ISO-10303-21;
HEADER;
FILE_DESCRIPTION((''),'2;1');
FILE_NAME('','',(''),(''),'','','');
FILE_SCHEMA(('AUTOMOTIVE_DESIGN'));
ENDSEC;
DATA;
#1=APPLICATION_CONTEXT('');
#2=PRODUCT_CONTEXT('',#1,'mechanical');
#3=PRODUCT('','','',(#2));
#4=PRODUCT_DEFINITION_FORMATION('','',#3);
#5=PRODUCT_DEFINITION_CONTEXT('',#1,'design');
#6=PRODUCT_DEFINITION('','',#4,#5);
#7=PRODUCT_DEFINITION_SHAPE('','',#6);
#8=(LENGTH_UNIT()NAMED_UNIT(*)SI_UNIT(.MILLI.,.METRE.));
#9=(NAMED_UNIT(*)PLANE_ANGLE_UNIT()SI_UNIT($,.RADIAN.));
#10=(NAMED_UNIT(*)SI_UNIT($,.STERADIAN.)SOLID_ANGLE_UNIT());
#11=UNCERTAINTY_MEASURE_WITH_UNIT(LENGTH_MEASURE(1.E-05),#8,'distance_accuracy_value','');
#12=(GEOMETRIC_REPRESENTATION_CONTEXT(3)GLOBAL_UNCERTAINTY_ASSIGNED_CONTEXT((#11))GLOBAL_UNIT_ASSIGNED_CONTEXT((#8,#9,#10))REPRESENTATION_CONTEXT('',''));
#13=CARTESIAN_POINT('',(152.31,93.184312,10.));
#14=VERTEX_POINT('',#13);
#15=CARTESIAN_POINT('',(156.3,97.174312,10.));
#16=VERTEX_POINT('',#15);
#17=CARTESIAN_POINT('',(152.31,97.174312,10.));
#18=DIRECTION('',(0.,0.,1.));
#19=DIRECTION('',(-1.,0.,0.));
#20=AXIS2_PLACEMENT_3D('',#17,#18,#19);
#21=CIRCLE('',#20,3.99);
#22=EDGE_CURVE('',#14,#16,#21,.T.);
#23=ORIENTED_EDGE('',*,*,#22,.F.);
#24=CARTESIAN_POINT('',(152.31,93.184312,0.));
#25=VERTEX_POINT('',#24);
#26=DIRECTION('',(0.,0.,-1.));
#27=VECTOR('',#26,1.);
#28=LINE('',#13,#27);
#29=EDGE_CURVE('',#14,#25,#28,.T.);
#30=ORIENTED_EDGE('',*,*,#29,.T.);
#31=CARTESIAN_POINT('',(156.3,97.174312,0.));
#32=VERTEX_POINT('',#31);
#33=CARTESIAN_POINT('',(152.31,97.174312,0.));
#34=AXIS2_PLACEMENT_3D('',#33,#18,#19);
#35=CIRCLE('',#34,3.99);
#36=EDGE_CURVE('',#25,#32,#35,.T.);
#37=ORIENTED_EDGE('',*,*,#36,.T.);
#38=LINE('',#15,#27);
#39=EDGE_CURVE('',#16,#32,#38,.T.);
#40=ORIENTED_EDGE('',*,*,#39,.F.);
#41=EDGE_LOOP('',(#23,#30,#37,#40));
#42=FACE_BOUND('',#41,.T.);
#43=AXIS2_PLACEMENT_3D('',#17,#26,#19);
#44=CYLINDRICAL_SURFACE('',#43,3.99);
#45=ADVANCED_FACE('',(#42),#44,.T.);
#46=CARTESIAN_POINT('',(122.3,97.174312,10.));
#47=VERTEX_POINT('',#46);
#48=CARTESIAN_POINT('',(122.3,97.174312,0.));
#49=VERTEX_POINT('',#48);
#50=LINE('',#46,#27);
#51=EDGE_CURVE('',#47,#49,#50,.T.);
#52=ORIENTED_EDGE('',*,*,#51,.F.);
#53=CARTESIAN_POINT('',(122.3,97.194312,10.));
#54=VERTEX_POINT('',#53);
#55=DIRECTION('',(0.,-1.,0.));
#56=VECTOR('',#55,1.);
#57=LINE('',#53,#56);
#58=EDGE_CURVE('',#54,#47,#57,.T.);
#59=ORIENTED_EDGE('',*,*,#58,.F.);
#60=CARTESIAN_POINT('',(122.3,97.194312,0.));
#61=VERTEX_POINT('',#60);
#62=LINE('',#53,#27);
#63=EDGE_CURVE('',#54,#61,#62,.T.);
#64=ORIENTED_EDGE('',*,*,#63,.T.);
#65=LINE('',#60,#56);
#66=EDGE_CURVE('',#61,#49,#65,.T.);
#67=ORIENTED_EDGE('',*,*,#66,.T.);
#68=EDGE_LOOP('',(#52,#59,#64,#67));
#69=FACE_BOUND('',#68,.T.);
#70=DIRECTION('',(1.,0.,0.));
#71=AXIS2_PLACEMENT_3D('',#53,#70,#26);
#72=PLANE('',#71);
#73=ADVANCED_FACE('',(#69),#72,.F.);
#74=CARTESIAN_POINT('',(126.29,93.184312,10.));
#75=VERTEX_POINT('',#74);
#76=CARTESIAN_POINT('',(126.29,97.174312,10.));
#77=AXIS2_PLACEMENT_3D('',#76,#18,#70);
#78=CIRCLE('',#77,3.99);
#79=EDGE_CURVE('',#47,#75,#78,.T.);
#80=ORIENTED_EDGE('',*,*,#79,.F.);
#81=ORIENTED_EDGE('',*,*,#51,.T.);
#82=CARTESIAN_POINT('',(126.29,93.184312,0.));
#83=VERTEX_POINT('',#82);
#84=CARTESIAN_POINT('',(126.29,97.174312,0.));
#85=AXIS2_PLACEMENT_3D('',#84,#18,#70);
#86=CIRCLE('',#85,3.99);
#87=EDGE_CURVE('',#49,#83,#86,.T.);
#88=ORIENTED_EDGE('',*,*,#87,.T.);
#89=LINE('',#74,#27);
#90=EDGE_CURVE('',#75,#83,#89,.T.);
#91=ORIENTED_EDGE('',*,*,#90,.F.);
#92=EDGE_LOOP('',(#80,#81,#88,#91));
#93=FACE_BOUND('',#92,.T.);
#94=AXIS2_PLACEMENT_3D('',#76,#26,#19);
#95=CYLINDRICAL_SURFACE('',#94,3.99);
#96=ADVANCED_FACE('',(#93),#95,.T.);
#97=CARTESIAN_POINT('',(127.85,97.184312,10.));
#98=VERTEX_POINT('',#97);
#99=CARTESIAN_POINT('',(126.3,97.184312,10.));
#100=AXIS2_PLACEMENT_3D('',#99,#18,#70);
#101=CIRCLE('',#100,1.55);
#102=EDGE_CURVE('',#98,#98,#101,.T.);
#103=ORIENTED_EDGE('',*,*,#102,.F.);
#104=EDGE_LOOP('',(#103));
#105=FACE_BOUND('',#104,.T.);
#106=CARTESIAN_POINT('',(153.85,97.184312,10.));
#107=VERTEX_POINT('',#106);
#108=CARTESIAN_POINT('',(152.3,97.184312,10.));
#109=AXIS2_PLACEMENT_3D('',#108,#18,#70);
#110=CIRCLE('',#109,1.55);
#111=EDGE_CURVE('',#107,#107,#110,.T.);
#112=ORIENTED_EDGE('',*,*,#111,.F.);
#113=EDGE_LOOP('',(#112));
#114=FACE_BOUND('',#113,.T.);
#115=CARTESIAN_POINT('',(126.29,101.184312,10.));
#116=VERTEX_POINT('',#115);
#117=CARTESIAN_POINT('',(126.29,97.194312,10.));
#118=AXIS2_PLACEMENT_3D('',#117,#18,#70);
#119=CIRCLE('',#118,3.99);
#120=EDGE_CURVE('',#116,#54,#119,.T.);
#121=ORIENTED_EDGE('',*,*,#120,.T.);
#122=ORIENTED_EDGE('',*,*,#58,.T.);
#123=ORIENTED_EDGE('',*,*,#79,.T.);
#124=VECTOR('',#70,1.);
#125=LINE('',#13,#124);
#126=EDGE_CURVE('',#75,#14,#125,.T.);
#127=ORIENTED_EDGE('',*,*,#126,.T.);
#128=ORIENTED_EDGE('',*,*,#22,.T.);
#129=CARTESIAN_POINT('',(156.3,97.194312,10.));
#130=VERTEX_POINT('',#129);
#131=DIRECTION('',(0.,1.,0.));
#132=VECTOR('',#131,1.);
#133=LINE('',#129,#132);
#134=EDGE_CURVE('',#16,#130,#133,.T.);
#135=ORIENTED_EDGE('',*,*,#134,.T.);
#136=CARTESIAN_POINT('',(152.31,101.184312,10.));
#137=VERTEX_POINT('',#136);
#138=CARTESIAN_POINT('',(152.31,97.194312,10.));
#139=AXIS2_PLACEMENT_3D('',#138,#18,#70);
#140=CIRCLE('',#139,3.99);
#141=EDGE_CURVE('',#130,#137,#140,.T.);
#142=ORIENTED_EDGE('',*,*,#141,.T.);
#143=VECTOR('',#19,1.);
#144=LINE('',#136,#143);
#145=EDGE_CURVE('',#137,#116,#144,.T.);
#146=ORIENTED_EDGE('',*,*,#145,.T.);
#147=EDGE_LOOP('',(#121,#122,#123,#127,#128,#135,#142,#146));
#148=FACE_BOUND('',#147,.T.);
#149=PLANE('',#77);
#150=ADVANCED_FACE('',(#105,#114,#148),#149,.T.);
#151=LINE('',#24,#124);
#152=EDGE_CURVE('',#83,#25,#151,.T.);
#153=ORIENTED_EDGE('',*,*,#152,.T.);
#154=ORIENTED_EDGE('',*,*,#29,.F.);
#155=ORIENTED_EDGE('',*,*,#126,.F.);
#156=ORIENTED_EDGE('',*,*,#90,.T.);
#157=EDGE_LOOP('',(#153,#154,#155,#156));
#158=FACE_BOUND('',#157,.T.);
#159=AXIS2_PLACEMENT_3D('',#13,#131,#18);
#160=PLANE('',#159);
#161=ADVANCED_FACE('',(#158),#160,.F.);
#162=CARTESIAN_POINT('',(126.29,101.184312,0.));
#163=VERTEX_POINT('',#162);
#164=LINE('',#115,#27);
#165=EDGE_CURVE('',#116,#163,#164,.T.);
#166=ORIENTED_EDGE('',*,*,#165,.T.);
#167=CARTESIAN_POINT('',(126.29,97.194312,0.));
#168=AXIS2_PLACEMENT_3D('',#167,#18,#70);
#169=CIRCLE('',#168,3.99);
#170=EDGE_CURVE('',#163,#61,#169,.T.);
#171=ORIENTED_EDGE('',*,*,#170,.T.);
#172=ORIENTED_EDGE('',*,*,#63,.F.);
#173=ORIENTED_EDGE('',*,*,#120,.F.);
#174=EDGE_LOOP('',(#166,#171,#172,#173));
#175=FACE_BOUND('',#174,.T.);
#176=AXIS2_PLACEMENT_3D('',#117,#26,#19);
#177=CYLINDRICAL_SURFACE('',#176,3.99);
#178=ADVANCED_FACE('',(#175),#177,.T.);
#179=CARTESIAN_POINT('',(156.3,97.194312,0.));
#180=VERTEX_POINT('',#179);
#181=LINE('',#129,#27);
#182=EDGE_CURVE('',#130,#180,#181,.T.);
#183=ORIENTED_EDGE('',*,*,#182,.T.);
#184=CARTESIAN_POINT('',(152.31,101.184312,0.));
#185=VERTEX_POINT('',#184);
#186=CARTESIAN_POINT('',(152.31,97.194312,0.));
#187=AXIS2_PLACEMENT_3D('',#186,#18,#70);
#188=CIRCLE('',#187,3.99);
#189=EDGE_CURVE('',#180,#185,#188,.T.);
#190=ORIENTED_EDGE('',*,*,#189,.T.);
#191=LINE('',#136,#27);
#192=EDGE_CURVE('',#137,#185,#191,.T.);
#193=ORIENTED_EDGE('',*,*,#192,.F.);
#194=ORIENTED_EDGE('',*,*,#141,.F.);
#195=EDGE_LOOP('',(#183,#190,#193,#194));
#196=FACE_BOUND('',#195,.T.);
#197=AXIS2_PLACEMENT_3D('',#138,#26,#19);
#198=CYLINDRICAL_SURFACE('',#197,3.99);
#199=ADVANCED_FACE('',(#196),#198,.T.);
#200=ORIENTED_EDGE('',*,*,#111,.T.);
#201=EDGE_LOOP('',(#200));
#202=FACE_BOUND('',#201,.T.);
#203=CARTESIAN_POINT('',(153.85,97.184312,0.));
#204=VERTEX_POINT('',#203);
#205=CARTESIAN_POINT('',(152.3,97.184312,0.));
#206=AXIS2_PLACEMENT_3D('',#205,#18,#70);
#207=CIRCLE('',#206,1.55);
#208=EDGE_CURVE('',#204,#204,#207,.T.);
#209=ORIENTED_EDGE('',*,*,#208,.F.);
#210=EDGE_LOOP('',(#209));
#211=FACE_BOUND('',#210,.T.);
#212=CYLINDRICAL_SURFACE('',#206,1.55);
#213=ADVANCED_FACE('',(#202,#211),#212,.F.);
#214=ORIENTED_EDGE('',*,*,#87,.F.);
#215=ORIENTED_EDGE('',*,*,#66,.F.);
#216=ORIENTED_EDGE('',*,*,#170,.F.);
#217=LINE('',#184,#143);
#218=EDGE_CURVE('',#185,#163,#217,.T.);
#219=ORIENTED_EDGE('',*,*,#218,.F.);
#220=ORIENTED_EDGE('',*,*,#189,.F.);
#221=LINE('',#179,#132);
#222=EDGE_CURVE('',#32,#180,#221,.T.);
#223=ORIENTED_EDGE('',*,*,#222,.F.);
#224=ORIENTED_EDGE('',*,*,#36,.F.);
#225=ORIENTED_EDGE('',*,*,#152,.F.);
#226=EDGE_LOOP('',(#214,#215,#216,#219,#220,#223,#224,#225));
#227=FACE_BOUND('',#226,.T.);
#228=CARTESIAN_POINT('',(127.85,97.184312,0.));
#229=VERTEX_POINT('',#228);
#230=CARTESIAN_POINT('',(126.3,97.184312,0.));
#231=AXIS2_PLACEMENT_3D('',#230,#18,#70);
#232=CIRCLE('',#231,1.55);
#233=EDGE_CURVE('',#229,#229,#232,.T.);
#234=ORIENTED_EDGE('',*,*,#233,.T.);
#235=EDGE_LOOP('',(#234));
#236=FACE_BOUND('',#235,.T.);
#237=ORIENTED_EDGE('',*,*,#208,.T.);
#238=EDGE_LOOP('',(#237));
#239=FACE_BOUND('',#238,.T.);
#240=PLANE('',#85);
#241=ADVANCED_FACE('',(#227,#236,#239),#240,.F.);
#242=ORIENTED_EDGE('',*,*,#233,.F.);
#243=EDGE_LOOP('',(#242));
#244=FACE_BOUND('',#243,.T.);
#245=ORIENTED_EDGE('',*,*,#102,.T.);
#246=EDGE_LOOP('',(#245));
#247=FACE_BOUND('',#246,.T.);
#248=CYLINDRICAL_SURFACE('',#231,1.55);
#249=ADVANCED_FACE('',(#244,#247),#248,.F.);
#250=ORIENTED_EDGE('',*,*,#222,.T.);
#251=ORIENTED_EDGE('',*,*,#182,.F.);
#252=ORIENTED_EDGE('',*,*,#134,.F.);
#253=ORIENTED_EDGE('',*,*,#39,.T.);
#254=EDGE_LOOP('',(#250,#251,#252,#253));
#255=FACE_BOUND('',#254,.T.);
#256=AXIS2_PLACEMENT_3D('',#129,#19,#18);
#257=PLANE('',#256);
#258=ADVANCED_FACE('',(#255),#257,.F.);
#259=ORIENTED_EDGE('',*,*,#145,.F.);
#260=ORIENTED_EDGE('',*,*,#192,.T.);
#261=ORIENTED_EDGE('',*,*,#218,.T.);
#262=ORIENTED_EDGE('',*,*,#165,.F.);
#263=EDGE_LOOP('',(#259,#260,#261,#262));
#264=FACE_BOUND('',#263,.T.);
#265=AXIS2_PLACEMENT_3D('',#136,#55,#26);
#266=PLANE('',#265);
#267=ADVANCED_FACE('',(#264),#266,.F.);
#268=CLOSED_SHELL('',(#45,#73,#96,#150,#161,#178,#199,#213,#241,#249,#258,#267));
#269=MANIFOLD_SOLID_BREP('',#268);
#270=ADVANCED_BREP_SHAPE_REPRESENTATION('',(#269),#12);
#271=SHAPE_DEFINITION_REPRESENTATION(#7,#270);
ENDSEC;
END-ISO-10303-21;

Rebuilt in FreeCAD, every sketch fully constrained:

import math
import FreeCAD as App
import Part
import Sketcher
from FreeCAD import Vector
Q = App.Units.Quantity

doc = App.newDocument("Part")
params = doc.addObject("Spreadsheet::Sheet", "Params")
for row, (alias, value) in enumerate([
    ("sketch1_radius", "3.99 mm"),
    ("sketch1_width", "26.02 mm"),
    ("pad1_length", "10 mm"),
    ("sketch2_diameter", "3.1 mm"),
    ("pocket1_length", "10 mm"),
], start=1):
    params.set(f"A{row}", alias)
    params.set(f"B{row}", "=" + value)
    params.setAlias(f"B{row}", alias)

body = doc.addObject("PartDesign::Body", "Body")

# Sketch on XY plane
sketch1 = doc.addObject("Sketcher::SketchObject", "Sketch")
body.addObject(sketch1)
sketch1.AttachmentSupport = (doc.XY_Plane, [""])
sketch1.MapMode = "FlatFace"
sketch1.addGeometry([
    Part.LineSegment(Vector(152.31, 101.184312, 0), Vector(126.29, 101.184312, 0)),  # 0
    Part.ArcOfCircle(Part.Circle(Vector(126.29, 97.194312, 0), Vector(0, 0, 1), 3.99), math.radians(90), math.radians(180)),  # 1
    Part.LineSegment(Vector(122.3, 97.194312, 0), Vector(122.3, 97.174312, 0)),  # 2
    Part.ArcOfCircle(Part.Circle(Vector(126.29, 97.174312, 0), Vector(0, 0, 1), 3.99), math.radians(180), math.radians(270)),  # 3
    Part.LineSegment(Vector(126.29, 93.184312, 0), Vector(152.31, 93.184312, 0)),  # 4
    Part.ArcOfCircle(Part.Circle(Vector(152.31, 97.174312, 0), Vector(0, 0, 1), 3.99), math.radians(-90), math.radians(0)),  # 5
    Part.LineSegment(Vector(156.3, 97.174312, 0), Vector(156.3, 97.194312, 0)),  # 6
    Part.ArcOfCircle(Part.Circle(Vector(152.31, 97.194312, 0), Vector(0, 0, 1), 3.99), math.radians(0), math.radians(90)),  # 7
], False)
sketch1.addConstraint([
    Sketcher.Constraint("Tangent", 0, 2, 1, 1),
    Sketcher.Constraint("Tangent", 1, 2, 2, 1),
    Sketcher.Constraint("Tangent", 2, 2, 3, 1),
    Sketcher.Constraint("Tangent", 3, 2, 4, 1),
    Sketcher.Constraint("Tangent", 4, 2, 5, 1),
    Sketcher.Constraint("Tangent", 5, 2, 6, 1),
    Sketcher.Constraint("Tangent", 6, 2, 7, 1),
    Sketcher.Constraint("Tangent", 7, 2, 0, 1),
    Sketcher.Constraint("Horizontal", 0),
    Sketcher.Constraint("Vertical", 2),
    Sketcher.Constraint("Horizontal", 4),
    Sketcher.Constraint("Vertical", 6),
    Sketcher.Constraint("Equal", 1, 3),
    Sketcher.Constraint("Equal", 3, 5),
    Sketcher.Constraint("Equal", 5, 7),
    Sketcher.Constraint("Radius", 1, Q("3.99 mm")),
    Sketcher.Constraint("DistanceY", 3, 2, 0, 2, Q("8 mm")),
    Sketcher.Constraint("DistanceX", 0, 2, 0, 1, Q("26.02 mm")),
    Sketcher.Constraint("DistanceX", -1, 1, 1, 2, Q("122.3 mm")),
    Sketcher.Constraint("DistanceY", -1, 1, 1, 3, Q("97.194312 mm")),
])
sketch1.setExpression("Constraints[15]", "Params.sketch1_radius")
sketch1.setExpression("Constraints[17]", "Params.sketch1_width")
pad1 = doc.addObject("PartDesign::Pad", "Pad")
body.addObject(pad1)
pad1.Profile = sketch1
pad1.setExpression("Length", "Params.pad1_length")

# Sketch on XY plane
sketch2 = doc.addObject("Sketcher::SketchObject", "Sketch001")
body.addObject(sketch2)
sketch2.AttachmentSupport = (doc.XY_Plane, [""])
sketch2.MapMode = "FlatFace"
sketch2.AttachmentOffset = App.Placement(Vector(0, 0, 10), App.Rotation())
sketch2.addGeometry([
    Part.Circle(Vector(152.3, 97.184312, 0), Vector(0, 0, 1), 1.55),
    Part.Circle(Vector(126.3, 97.184312, 0), Vector(0, 0, 1), 1.55),
], False)
sketch2.addConstraint([
    Sketcher.Constraint("Equal", 0, 1),
    Sketcher.Constraint("Horizontal", 0, 3, 1, 3),
    Sketcher.Constraint("Diameter", 0, Q("3.1 mm")),
    Sketcher.Constraint("DistanceX", 1, 3, 0, 3, Q("26 mm")),
    Sketcher.Constraint("DistanceX", -1, 1, 0, 3, Q("152.3 mm")),
    Sketcher.Constraint("DistanceY", -1, 1, 0, 3, Q("97.184312 mm")),
])
sketch2.setExpression("Constraints[2]", "Params.sketch2_diameter")
pocket1 = doc.addObject("PartDesign::Pocket", "Pocket")
body.addObject(pocket1)
pocket1.Profile = sketch2
pocket1.setExpression("Length", "Params.pocket1_length")

doc.recompute()
